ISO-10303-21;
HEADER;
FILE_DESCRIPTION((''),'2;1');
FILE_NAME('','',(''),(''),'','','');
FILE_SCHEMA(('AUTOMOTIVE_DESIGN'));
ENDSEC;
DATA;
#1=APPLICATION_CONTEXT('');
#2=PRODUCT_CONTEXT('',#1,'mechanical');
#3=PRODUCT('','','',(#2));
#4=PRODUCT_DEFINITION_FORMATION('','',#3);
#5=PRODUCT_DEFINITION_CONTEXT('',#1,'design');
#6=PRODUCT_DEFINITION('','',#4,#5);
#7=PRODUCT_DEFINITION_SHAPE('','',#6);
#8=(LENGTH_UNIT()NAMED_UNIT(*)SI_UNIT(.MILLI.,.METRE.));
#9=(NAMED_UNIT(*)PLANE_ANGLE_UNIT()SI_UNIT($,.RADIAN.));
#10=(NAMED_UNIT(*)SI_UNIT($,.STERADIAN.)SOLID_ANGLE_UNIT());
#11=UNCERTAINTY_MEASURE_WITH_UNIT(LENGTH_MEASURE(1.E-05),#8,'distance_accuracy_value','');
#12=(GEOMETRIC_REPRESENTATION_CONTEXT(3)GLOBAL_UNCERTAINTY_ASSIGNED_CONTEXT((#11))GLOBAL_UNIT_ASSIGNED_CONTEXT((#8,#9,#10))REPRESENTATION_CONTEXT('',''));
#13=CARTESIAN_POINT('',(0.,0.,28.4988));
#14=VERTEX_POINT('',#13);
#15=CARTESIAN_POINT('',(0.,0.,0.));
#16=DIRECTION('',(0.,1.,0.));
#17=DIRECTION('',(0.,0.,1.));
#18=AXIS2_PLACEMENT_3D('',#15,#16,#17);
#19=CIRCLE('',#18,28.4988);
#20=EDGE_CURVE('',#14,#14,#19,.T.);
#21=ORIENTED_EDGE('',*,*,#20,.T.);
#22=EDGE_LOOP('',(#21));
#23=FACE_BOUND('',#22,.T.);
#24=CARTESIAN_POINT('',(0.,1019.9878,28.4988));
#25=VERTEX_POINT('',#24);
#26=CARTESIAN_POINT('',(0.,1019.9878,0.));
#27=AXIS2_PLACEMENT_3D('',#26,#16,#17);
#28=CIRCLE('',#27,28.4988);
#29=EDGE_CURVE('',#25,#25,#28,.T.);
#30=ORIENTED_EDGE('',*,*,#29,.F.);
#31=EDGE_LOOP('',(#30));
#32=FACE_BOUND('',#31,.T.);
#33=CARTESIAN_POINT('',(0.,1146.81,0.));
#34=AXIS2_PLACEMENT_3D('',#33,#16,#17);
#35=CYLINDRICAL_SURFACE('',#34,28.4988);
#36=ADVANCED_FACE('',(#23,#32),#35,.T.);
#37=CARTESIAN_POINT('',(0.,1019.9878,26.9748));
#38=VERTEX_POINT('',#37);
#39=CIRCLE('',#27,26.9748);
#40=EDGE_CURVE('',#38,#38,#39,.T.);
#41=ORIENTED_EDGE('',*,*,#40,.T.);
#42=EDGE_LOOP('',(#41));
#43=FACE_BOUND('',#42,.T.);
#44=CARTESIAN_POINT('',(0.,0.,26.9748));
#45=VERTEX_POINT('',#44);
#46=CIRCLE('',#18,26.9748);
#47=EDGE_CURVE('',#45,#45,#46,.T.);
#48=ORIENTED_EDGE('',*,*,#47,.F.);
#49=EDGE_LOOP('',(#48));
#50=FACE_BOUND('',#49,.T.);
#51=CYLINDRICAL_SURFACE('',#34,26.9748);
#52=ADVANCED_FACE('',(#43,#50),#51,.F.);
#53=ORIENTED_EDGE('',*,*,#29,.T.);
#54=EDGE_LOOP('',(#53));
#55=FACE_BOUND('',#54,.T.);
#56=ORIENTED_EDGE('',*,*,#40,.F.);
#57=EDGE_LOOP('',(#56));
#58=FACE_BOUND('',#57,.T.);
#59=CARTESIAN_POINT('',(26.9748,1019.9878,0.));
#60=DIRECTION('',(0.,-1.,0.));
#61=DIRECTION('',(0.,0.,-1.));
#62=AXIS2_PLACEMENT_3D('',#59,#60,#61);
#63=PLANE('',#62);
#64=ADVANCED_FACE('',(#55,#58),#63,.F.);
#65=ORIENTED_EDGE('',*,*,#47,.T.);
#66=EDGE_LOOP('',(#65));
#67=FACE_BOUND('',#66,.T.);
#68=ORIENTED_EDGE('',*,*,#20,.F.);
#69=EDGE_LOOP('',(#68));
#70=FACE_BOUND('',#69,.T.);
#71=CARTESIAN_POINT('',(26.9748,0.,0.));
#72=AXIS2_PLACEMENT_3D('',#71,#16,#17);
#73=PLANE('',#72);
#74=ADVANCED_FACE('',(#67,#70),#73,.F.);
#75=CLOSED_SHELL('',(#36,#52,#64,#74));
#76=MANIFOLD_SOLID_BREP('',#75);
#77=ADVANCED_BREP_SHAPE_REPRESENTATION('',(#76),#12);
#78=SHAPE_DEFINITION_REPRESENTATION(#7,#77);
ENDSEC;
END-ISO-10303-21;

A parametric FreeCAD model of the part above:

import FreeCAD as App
import Part
import Sketcher
from FreeCAD import Vector
Q = App.Units.Quantity


def add_polygon(sketch, points):
    """Adds a closed chain of lines whose ends are joined by coincident constraints."""
    first, n = sketch.GeometryCount, len(points)
    for a, b in zip(points, points[1:] + points[:1]):
        sketch.addGeometry(Part.LineSegment(App.Vector(*a, 0), App.Vector(*b, 0)), False)
    for i in range(n):
        sketch.addConstraint(Sketcher.Constraint("Coincident", first + i, 2, first + (i + 1) % n, 1))

doc = App.newDocument("Part")
body = doc.addObject("PartDesign::Body", "Body")

# Sketch on XY plane
sketch1 = body.newObject("Sketcher::SketchObject", "Sketch")
sketch1.AttachmentSupport = (doc.getObject("XY_Plane"), [""])
sketch1.MapMode = "FlatFace"
add_polygon(sketch1, [(27, 1020), (27, 0), (28.5, 0), (28.5, 1020)])  # lines 0-3
sketch1.addConstraint([
    Sketcher.Constraint("Vertical", 0),
    Sketcher.Constraint("Horizontal", 1),
    Sketcher.Constraint("Vertical", 2),
    Sketcher.Constraint("Horizontal", 3),
    Sketcher.Constraint("PointOnObject", 0, 2, -1),
    Sketcher.Constraint("DistanceX", 1, 1, 1, 2, Q("0.06 in")),
    Sketcher.Constraint("DistanceY", 0, 2, 0, 1, Q("40.157 in")),
    Sketcher.Constraint("DistanceX", -1, 1, 0, 2, Q("1.062 in")),
])
revolution = body.newObject("PartDesign::Revolution", "Revolution")
revolution.Profile = sketch1
revolution.ReferenceAxis = (sketch1, ["V_Axis"])
revolution.Angle = 360

doc.recompute()
